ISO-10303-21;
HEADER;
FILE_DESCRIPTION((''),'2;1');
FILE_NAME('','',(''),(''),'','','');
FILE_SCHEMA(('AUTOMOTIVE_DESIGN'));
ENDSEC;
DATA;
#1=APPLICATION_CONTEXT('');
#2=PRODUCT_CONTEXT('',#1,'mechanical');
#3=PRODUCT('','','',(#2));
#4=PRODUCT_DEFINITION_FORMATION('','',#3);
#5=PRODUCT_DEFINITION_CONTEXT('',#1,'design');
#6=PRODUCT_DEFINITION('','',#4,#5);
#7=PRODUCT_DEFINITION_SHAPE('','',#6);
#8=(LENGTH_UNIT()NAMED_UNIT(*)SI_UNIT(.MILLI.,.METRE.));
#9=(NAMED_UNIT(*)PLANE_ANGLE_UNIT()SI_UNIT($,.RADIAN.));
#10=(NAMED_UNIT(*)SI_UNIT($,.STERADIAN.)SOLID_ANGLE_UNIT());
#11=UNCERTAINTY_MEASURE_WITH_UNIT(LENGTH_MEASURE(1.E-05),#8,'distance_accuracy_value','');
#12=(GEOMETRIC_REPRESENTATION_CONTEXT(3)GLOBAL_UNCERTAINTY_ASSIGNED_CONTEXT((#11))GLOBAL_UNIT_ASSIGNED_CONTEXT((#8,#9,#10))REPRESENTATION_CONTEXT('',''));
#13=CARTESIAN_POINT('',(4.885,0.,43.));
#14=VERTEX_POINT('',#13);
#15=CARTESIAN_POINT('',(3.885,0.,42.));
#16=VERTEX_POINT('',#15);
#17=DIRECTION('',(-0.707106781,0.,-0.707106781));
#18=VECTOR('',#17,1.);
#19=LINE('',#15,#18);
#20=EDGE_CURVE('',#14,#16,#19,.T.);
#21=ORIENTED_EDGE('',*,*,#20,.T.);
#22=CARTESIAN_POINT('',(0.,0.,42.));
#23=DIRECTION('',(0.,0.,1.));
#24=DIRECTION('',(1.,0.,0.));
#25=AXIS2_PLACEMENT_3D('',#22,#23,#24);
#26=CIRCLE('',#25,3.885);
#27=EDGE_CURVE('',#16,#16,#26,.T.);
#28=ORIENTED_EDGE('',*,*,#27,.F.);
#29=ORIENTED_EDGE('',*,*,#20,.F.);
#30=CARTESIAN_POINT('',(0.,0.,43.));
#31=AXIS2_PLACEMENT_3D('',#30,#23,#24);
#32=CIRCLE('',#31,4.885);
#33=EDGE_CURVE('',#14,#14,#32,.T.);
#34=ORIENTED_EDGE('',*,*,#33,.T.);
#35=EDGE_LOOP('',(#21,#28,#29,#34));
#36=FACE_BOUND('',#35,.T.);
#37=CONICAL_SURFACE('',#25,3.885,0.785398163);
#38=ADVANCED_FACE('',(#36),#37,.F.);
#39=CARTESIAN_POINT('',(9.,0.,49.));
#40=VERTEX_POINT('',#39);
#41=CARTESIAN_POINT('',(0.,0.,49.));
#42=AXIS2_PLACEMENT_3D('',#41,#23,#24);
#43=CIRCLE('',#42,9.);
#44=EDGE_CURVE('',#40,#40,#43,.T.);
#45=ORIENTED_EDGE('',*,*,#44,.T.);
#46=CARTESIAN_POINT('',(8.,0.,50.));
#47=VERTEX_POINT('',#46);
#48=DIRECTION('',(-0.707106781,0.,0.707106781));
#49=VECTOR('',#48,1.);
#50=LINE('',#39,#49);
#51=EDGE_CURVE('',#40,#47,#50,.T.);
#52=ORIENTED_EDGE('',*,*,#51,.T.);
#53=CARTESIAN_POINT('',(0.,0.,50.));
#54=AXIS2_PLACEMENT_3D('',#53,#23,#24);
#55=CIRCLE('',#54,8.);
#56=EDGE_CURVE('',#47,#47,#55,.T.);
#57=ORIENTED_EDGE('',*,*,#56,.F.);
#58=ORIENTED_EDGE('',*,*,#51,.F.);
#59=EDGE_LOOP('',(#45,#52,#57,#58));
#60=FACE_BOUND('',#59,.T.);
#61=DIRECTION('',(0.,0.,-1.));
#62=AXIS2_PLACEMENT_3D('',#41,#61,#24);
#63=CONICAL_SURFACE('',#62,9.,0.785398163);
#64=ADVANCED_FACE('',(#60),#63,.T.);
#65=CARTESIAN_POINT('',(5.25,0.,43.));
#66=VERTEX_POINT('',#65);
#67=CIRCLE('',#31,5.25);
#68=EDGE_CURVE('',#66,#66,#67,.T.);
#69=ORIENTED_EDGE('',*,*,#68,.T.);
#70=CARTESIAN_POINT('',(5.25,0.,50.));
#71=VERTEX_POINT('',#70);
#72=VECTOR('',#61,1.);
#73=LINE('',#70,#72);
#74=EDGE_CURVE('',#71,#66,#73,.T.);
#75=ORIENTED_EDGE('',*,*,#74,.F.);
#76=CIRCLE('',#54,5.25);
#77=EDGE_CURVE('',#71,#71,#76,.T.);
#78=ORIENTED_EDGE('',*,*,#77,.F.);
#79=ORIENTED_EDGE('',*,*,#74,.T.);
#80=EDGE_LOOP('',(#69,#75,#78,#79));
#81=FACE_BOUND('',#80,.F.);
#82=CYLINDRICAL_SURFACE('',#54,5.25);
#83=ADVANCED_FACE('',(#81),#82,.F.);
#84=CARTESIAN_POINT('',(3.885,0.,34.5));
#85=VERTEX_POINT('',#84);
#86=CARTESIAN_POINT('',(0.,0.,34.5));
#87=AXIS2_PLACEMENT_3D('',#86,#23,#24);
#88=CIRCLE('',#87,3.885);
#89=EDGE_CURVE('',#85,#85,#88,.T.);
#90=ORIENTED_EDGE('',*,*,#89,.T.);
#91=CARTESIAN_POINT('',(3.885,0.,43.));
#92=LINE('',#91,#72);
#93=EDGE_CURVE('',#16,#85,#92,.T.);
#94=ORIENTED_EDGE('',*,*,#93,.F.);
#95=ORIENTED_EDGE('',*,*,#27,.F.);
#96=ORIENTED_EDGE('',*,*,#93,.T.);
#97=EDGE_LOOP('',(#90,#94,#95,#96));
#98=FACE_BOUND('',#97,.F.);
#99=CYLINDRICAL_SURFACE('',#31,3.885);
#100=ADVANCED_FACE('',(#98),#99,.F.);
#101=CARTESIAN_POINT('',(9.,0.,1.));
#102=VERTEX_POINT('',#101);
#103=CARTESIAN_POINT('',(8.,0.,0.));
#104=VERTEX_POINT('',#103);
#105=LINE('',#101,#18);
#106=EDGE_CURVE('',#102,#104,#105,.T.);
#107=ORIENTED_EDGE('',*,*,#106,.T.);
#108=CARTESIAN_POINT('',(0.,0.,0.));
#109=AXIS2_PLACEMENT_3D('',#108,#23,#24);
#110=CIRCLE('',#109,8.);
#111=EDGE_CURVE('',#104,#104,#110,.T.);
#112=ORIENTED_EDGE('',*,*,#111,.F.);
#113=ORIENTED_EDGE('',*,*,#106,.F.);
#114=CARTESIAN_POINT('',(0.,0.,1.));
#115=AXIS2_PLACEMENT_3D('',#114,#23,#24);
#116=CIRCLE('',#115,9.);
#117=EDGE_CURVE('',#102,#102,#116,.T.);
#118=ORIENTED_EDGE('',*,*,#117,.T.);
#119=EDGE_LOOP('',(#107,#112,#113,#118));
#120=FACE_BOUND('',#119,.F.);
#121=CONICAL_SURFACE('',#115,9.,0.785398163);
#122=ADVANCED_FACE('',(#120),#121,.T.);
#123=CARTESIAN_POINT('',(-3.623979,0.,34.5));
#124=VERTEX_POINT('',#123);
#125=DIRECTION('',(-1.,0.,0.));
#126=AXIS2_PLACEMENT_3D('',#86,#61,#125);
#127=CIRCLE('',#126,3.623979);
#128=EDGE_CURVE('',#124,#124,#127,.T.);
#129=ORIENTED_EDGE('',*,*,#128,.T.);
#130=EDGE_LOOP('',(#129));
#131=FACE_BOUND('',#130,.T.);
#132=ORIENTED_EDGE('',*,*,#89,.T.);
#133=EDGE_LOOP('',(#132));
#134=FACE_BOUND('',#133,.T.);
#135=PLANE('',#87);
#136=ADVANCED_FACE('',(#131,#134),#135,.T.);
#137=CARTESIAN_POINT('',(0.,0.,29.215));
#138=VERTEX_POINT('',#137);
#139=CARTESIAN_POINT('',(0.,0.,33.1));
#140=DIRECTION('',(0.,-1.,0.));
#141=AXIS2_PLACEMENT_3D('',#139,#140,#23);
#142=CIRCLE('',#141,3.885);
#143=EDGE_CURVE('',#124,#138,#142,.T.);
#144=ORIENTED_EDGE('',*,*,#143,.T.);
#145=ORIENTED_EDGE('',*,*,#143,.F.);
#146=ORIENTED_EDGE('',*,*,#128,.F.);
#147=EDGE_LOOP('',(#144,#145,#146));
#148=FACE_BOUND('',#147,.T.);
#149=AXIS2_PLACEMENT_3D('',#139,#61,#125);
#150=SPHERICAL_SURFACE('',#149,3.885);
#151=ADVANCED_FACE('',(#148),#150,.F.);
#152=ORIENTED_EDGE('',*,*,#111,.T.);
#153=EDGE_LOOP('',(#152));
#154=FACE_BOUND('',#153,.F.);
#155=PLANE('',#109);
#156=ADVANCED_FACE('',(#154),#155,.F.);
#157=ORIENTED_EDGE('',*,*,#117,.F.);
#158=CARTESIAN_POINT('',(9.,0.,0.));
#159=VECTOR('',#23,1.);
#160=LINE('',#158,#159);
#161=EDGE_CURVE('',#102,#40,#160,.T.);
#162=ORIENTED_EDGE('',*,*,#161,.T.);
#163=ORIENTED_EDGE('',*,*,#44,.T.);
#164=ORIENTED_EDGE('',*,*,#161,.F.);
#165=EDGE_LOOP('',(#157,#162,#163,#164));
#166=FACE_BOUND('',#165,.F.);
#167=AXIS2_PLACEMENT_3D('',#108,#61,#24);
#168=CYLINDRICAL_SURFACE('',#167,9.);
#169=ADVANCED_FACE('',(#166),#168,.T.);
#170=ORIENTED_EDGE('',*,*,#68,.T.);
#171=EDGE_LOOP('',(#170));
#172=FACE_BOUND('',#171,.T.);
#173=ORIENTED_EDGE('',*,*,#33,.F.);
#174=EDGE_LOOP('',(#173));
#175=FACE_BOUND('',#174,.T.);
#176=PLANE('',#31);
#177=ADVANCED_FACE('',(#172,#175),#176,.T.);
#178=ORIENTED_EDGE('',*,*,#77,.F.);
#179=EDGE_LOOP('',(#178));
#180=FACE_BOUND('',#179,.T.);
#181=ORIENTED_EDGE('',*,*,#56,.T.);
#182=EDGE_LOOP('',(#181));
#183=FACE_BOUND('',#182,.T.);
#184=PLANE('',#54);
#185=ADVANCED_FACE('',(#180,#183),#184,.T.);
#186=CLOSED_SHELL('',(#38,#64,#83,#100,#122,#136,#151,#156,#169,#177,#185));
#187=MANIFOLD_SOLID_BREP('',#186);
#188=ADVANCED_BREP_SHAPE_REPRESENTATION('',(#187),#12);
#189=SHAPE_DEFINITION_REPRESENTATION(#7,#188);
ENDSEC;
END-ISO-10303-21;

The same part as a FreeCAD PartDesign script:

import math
import FreeCAD as App
import Part
import Sketcher
Q = App.Units.Quantity


def edges_at(feature, points):
    """Names of the edges that pass closest to the given points."""
    edges = feature.Shape.Edges
    near = lambda p: min(range(len(edges)), key=lambda i: edges[i].distToShape(Part.Vertex(*p))[0])
    return sorted({f"Edge{near(p) + 1}" for p in points})

doc = App.newDocument("Part")
body = doc.addObject("PartDesign::Body", "Body")

# Sketch on XY plane
sketch1 = body.newObject("Sketcher::SketchObject", "Sketch")
sketch1.AttachmentSupport = (doc.getObject("XY_Plane"), [""])
sketch1.MapMode = "FlatFace"
sketch1.addGeometry(Part.Circle(App.Vector(0, 0, 0), App.Vector(0, 0, 1), 9), False)
sketch1.addConstraint(Sketcher.Constraint("Coincident", 0, 3, -1, 1))
sketch1.addConstraint(Sketcher.Constraint("Diameter", 0, Q("18 mm")))
pad1 = body.newObject("PartDesign::Pad", "Pad")
pad1.Profile = sketch1
pad1.Length = 50

# Sketch on XY plane
sketch2 = body.newObject("Sketcher::SketchObject", "Sketch001")
sketch2.AttachmentSupport = (doc.getObject("XY_Plane"), [""])
sketch2.MapMode = "FlatFace"
sketch2.AttachmentOffset = App.Placement(App.Vector(0, 0, 50), App.Rotation())
sketch2.addGeometry(Part.Circle(App.Vector(0, 0, 0), App.Vector(0, 0, 1), 5), False)
sketch2.addConstraint(Sketcher.Constraint("Coincident", 0, 3, -1, 1))
sketch2.addConstraint(Sketcher.Constraint("Diameter", 0, Q("10.5 mm")))
pocket1 = body.newObject("PartDesign::Pocket", "Pocket")
pocket1.Profile = sketch2
pocket1.Length = 7

# Sketch on XY plane
sketch3 = body.newObject("Sketcher::SketchObject", "Sketch002")
sketch3.AttachmentSupport = (doc.getObject("XY_Plane"), [""])
sketch3.MapMode = "FlatFace"
sketch3.AttachmentOffset = App.Placement(App.Vector(0, 0, 43), App.Rotation())
sketch3.addGeometry(Part.Circle(App.Vector(0, 0, 0), App.Vector(0, 0, 1), 3.9), False)
sketch3.addConstraint(Sketcher.Constraint("Coincident", 0, 3, -1, 1))
sketch3.addConstraint(Sketcher.Constraint("Diameter", 0, Q("7.77 mm")))
pocket2 = body.newObject("PartDesign::Pocket", "Pocket001")
pocket2.Profile = sketch3
pocket2.Length = 8.5

# Sketch on XZ plane
sketch4 = body.newObject("Sketcher::SketchObject", "Sketch003")
sketch4.AttachmentSupport = (doc.getObject("XZ_Plane"), [""])
sketch4.MapMode = "FlatFace"
sketch4.addGeometry(Part.ArcOfCircle(Part.Circle(App.Vector(0, 33.1, 0), App.Vector(0, 0, 1), 3.9), math.radians(90), math.radians(270)), False)
sketch4.addGeometry(Part.LineSegment(App.Vector(0, 29.2, 0), App.Vector(0, 37, 0)), False)
sketch4.addConstraint(Sketcher.Constraint("Coincident", 0, 1, 1, 2))
sketch4.addConstraint(Sketcher.Constraint("Coincident", 1, 1, 0, 2))
sketch4.addConstraint(Sketcher.Constraint("Vertical", 1))
sketch4.addConstraint(Sketcher.Constraint("PointOnObject", 0, 3, -2))
sketch4.addConstraint(Sketcher.Constraint("PointOnObject", 0, 1, -2))
sketch4.addConstraint(Sketcher.Constraint("Radius", 0, Q("3.885 mm")))
sketch4.addConstraint(Sketcher.Constraint("DistanceY", -1, 1, 0, 3, Q("33.1 mm")))
groove = body.newObject("PartDesign::Groove", "Groove")
groove.Profile = sketch4
groove.ReferenceAxis = (sketch4, ["V_Axis"])
groove.Angle = 360
doc.recompute()

chamfer = body.newObject("PartDesign::Chamfer", "Chamfer")
chamfer.Base = (groove, edges_at(groove, [(-3.885, 0, 43), (-9, 0, 50), (-9, 0, 0)]))
chamfer.Size = 1

doc.recompute()
